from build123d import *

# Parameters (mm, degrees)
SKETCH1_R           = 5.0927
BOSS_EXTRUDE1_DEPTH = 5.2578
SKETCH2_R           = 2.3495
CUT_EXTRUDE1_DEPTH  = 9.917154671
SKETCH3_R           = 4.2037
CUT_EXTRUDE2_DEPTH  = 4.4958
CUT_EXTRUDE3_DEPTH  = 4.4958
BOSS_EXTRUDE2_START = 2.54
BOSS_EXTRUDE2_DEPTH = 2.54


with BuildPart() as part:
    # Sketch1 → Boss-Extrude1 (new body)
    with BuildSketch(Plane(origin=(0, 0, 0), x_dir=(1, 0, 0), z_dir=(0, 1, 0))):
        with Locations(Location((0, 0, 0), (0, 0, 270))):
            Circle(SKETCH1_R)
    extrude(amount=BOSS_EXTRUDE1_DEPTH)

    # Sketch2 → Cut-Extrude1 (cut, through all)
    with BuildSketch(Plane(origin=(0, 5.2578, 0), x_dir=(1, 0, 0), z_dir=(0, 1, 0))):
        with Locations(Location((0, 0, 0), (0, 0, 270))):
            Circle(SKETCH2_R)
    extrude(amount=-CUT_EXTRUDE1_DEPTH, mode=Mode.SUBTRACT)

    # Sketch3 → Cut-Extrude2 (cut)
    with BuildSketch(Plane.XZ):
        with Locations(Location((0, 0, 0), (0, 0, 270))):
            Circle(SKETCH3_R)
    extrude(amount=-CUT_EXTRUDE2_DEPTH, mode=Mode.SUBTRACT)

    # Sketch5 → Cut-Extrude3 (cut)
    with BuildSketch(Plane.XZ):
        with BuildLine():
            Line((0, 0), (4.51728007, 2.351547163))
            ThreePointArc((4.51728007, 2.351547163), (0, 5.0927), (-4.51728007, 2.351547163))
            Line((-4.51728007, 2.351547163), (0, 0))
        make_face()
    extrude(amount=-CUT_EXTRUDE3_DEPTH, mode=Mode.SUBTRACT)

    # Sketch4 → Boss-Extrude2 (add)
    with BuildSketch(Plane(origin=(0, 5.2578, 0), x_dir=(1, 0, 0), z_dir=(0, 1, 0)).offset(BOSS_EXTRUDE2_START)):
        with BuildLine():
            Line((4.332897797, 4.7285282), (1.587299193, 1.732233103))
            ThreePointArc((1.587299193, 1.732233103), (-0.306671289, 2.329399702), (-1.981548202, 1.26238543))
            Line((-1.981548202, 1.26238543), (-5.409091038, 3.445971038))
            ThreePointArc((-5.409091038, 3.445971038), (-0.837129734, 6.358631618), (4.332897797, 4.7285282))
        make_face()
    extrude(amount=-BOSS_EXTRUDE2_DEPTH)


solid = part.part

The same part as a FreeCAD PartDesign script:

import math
import FreeCAD as App
import Part
import Sketcher
Q = App.Units.Quantity

doc = App.newDocument("Part")
body = doc.addObject("PartDesign::Body", "Body")

# Sketch on XZ plane
sketch1 = body.newObject("Sketcher::SketchObject", "Sketch")
sketch1.AttachmentSupport = (doc.getObject("XZ_Plane"), [""])
sketch1.MapMode = "FlatFace"
sketch1.addGeometry(Part.Circle(App.Vector(0, 0, 0), App.Vector(0, 0, 1), 5.0927), False)
sketch1.addConstraint(Sketcher.Constraint("Coincident", 0, 3, -1, 1))
sketch1.addConstraint(Sketcher.Constraint("Diameter", 0, Q("0.401 in")))
pad1 = body.newObject("PartDesign::Pad", "Pad")
pad1.Profile = sketch1
pad1.Length = Q("0.207 in")
pad1.Reversed = True

# Sketch on XZ plane
sketch2 = body.newObject("Sketcher::SketchObject", "Sketch001")
sketch2.AttachmentSupport = (doc.getObject("XZ_Plane"), [""])
sketch2.MapMode = "FlatFace"
sketch2.AttachmentOffset = App.Placement(App.Vector(0, 0, -0.207 * 25.4), App.Rotation())
sketch2.addGeometry(Part.Circle(App.Vector(0, 0, 0), App.Vector(0, 0, 1), 2.3495), False)
sketch2.addConstraint(Sketcher.Constraint("Coincident", 0, 3, -1, 1))
sketch2.addConstraint(Sketcher.Constraint("Diameter", 0, Q("0.185 in")))
pocket1 = body.newObject("PartDesign::Pocket", "Pocket")
pocket1.Profile = sketch2
pocket1.Type = "ThroughAll"
pocket1.Reversed = True

# Sketch on XZ plane
sketch3 = body.newObject("Sketcher::SketchObject", "Sketch002")
sketch3.AttachmentSupport = (doc.getObject("XZ_Plane"), [""])
sketch3.MapMode = "FlatFace"
sketch3.addGeometry(Part.Circle(App.Vector(0, 0, 0), App.Vector(0, 0, 1), 4.2037), False)
sketch3.addConstraint(Sketcher.Constraint("Coincident", 0, 3, -1, 1))
sketch3.addConstraint(Sketcher.Constraint("Diameter", 0, Q("0.331 in")))
pocket2 = body.newObject("PartDesign::Pocket", "Pocket001")
pocket2.Profile = sketch3
pocket2.Length = Q("0.177 in")

# Sketch on XZ plane
sketch4 = body.newObject("Sketcher::SketchObject", "Sketch003")
sketch4.AttachmentSupport = (doc.getObject("XZ_Plane"), [""])
sketch4.MapMode = "FlatFace"
sketch4.addGeometry(Part.LineSegment(App.Vector(0, 0, 0), App.Vector(4.51728, 2.351547, 0)), False)
sketch4.addGeometry(Part.ArcOfCircle(Part.Circle(App.Vector(0, 0, 0), App.Vector(0, 0, 1), 5.0927), math.radians(27.5), math.radians(152.5)), False)
sketch4.addGeometry(Part.LineSegment(App.Vector(-4.51728, 2.351547, 0), App.Vector(0, 0, 0)), False)
sketch4.addConstraint(Sketcher.Constraint("Coincident", 0, 2, 1, 1))
sketch4.addConstraint(Sketcher.Constraint("Coincident", 1, 2, 2, 1))
sketch4.addConstraint(Sketcher.Constraint("Coincident", 2, 2, 0, 1))
sketch4.addConstraint(Sketcher.Constraint("Coincident", 1, 3, -1, 1))
sketch4.addConstraint(Sketcher.Constraint("Coincident", 2, 2, -1, 1))
sketch4.addConstraint(Sketcher.Constraint("Horizontal", 0, 2, 1, 2))
sketch4.addConstraint(Sketcher.Constraint("Angle", 0, Q("27.5 deg")))
sketch4.addConstraint(Sketcher.Constraint("Radius", 1, Q("0.2005 in")))
pocket3 = body.newObject("PartDesign::Pocket", "Pocket002")
pocket3.Profile = sketch4
pocket3.Length = Q("0.177 in")

# Sketch on XZ plane
sketch5 = body.newObject("Sketcher::SketchObject", "Sketch004")
sketch5.AttachmentSupport = (doc.getObject("XZ_Plane"), [""])
sketch5.MapMode = "FlatFace"
sketch5.AttachmentOffset = App.Placement(App.Vector(0, 0, -0.307 * 25.4), App.Rotation())
sketch5.addGeometry(Part.LineSegment(App.Vector(1.587299, -1.732233, 0), App.Vector(4.332898, -4.728528, 0)), False)
sketch5.addGeometry(Part.ArcOfCircle(Part.Circle(App.Vector(0, 0, 0), App.Vector(0, 0, 1), 6.4135), math.radians(-147.5), math.radians(-47.5)), False)
sketch5.addGeometry(Part.LineSegment(App.Vector(-5.409091, -3.445971, 0), App.Vector(-1.981548, -1.262385, 0)), False)
sketch5.addGeometry(Part.ArcOfCircle(Part.Circle(App.Vector(0, 0, 0), App.Vector(0, 0, 1), 2.3495), math.radians(-147.5), math.radians(-47.5)), False)
sketch5.addConstraint(Sketcher.Constraint("Coincident", 0, 2, 1, 2))
sketch5.addConstraint(Sketcher.Constraint("Coincident", 1, 1, 2, 1))
sketch5.addConstraint(Sketcher.Constraint("Coincident", 2, 2, 3, 1))
sketch5.addConstraint(Sketcher.Constraint("Coincident", 3, 2, 0, 1))
sketch5.addConstraint(Sketcher.Constraint("Coincident", 1, 3, -1, 1))
sketch5.addConstraint(Sketcher.Constraint("Coincident", 3, 3, -1, 1))
sketch5.addConstraint(Sketcher.Constraint("Angle", 0, Q("-47.5 deg")))
sketch5.addConstraint(Sketcher.Constraint("Angle", 2, Q("32.5 deg")))
sketch5.addConstraint(Sketcher.Constraint("Radius", 1, Q("0.2525 in")))
sketch5.addConstraint(Sketcher.Constraint("Radius", 3, Q("0.0925 in")))
sketch5.addConstraint(Sketcher.Constraint("DistanceX", -1, 1, 3, 2, 1.587299))
sketch5.addConstraint(Sketcher.Constraint("DistanceX", 1, 1, -1, 1, 5.409091))
pad2 = body.newObject("PartDesign::Pad", "Pad001")
pad2.Profile = sketch5
pad2.Length = Q("0.1 in")

doc.recompute()
